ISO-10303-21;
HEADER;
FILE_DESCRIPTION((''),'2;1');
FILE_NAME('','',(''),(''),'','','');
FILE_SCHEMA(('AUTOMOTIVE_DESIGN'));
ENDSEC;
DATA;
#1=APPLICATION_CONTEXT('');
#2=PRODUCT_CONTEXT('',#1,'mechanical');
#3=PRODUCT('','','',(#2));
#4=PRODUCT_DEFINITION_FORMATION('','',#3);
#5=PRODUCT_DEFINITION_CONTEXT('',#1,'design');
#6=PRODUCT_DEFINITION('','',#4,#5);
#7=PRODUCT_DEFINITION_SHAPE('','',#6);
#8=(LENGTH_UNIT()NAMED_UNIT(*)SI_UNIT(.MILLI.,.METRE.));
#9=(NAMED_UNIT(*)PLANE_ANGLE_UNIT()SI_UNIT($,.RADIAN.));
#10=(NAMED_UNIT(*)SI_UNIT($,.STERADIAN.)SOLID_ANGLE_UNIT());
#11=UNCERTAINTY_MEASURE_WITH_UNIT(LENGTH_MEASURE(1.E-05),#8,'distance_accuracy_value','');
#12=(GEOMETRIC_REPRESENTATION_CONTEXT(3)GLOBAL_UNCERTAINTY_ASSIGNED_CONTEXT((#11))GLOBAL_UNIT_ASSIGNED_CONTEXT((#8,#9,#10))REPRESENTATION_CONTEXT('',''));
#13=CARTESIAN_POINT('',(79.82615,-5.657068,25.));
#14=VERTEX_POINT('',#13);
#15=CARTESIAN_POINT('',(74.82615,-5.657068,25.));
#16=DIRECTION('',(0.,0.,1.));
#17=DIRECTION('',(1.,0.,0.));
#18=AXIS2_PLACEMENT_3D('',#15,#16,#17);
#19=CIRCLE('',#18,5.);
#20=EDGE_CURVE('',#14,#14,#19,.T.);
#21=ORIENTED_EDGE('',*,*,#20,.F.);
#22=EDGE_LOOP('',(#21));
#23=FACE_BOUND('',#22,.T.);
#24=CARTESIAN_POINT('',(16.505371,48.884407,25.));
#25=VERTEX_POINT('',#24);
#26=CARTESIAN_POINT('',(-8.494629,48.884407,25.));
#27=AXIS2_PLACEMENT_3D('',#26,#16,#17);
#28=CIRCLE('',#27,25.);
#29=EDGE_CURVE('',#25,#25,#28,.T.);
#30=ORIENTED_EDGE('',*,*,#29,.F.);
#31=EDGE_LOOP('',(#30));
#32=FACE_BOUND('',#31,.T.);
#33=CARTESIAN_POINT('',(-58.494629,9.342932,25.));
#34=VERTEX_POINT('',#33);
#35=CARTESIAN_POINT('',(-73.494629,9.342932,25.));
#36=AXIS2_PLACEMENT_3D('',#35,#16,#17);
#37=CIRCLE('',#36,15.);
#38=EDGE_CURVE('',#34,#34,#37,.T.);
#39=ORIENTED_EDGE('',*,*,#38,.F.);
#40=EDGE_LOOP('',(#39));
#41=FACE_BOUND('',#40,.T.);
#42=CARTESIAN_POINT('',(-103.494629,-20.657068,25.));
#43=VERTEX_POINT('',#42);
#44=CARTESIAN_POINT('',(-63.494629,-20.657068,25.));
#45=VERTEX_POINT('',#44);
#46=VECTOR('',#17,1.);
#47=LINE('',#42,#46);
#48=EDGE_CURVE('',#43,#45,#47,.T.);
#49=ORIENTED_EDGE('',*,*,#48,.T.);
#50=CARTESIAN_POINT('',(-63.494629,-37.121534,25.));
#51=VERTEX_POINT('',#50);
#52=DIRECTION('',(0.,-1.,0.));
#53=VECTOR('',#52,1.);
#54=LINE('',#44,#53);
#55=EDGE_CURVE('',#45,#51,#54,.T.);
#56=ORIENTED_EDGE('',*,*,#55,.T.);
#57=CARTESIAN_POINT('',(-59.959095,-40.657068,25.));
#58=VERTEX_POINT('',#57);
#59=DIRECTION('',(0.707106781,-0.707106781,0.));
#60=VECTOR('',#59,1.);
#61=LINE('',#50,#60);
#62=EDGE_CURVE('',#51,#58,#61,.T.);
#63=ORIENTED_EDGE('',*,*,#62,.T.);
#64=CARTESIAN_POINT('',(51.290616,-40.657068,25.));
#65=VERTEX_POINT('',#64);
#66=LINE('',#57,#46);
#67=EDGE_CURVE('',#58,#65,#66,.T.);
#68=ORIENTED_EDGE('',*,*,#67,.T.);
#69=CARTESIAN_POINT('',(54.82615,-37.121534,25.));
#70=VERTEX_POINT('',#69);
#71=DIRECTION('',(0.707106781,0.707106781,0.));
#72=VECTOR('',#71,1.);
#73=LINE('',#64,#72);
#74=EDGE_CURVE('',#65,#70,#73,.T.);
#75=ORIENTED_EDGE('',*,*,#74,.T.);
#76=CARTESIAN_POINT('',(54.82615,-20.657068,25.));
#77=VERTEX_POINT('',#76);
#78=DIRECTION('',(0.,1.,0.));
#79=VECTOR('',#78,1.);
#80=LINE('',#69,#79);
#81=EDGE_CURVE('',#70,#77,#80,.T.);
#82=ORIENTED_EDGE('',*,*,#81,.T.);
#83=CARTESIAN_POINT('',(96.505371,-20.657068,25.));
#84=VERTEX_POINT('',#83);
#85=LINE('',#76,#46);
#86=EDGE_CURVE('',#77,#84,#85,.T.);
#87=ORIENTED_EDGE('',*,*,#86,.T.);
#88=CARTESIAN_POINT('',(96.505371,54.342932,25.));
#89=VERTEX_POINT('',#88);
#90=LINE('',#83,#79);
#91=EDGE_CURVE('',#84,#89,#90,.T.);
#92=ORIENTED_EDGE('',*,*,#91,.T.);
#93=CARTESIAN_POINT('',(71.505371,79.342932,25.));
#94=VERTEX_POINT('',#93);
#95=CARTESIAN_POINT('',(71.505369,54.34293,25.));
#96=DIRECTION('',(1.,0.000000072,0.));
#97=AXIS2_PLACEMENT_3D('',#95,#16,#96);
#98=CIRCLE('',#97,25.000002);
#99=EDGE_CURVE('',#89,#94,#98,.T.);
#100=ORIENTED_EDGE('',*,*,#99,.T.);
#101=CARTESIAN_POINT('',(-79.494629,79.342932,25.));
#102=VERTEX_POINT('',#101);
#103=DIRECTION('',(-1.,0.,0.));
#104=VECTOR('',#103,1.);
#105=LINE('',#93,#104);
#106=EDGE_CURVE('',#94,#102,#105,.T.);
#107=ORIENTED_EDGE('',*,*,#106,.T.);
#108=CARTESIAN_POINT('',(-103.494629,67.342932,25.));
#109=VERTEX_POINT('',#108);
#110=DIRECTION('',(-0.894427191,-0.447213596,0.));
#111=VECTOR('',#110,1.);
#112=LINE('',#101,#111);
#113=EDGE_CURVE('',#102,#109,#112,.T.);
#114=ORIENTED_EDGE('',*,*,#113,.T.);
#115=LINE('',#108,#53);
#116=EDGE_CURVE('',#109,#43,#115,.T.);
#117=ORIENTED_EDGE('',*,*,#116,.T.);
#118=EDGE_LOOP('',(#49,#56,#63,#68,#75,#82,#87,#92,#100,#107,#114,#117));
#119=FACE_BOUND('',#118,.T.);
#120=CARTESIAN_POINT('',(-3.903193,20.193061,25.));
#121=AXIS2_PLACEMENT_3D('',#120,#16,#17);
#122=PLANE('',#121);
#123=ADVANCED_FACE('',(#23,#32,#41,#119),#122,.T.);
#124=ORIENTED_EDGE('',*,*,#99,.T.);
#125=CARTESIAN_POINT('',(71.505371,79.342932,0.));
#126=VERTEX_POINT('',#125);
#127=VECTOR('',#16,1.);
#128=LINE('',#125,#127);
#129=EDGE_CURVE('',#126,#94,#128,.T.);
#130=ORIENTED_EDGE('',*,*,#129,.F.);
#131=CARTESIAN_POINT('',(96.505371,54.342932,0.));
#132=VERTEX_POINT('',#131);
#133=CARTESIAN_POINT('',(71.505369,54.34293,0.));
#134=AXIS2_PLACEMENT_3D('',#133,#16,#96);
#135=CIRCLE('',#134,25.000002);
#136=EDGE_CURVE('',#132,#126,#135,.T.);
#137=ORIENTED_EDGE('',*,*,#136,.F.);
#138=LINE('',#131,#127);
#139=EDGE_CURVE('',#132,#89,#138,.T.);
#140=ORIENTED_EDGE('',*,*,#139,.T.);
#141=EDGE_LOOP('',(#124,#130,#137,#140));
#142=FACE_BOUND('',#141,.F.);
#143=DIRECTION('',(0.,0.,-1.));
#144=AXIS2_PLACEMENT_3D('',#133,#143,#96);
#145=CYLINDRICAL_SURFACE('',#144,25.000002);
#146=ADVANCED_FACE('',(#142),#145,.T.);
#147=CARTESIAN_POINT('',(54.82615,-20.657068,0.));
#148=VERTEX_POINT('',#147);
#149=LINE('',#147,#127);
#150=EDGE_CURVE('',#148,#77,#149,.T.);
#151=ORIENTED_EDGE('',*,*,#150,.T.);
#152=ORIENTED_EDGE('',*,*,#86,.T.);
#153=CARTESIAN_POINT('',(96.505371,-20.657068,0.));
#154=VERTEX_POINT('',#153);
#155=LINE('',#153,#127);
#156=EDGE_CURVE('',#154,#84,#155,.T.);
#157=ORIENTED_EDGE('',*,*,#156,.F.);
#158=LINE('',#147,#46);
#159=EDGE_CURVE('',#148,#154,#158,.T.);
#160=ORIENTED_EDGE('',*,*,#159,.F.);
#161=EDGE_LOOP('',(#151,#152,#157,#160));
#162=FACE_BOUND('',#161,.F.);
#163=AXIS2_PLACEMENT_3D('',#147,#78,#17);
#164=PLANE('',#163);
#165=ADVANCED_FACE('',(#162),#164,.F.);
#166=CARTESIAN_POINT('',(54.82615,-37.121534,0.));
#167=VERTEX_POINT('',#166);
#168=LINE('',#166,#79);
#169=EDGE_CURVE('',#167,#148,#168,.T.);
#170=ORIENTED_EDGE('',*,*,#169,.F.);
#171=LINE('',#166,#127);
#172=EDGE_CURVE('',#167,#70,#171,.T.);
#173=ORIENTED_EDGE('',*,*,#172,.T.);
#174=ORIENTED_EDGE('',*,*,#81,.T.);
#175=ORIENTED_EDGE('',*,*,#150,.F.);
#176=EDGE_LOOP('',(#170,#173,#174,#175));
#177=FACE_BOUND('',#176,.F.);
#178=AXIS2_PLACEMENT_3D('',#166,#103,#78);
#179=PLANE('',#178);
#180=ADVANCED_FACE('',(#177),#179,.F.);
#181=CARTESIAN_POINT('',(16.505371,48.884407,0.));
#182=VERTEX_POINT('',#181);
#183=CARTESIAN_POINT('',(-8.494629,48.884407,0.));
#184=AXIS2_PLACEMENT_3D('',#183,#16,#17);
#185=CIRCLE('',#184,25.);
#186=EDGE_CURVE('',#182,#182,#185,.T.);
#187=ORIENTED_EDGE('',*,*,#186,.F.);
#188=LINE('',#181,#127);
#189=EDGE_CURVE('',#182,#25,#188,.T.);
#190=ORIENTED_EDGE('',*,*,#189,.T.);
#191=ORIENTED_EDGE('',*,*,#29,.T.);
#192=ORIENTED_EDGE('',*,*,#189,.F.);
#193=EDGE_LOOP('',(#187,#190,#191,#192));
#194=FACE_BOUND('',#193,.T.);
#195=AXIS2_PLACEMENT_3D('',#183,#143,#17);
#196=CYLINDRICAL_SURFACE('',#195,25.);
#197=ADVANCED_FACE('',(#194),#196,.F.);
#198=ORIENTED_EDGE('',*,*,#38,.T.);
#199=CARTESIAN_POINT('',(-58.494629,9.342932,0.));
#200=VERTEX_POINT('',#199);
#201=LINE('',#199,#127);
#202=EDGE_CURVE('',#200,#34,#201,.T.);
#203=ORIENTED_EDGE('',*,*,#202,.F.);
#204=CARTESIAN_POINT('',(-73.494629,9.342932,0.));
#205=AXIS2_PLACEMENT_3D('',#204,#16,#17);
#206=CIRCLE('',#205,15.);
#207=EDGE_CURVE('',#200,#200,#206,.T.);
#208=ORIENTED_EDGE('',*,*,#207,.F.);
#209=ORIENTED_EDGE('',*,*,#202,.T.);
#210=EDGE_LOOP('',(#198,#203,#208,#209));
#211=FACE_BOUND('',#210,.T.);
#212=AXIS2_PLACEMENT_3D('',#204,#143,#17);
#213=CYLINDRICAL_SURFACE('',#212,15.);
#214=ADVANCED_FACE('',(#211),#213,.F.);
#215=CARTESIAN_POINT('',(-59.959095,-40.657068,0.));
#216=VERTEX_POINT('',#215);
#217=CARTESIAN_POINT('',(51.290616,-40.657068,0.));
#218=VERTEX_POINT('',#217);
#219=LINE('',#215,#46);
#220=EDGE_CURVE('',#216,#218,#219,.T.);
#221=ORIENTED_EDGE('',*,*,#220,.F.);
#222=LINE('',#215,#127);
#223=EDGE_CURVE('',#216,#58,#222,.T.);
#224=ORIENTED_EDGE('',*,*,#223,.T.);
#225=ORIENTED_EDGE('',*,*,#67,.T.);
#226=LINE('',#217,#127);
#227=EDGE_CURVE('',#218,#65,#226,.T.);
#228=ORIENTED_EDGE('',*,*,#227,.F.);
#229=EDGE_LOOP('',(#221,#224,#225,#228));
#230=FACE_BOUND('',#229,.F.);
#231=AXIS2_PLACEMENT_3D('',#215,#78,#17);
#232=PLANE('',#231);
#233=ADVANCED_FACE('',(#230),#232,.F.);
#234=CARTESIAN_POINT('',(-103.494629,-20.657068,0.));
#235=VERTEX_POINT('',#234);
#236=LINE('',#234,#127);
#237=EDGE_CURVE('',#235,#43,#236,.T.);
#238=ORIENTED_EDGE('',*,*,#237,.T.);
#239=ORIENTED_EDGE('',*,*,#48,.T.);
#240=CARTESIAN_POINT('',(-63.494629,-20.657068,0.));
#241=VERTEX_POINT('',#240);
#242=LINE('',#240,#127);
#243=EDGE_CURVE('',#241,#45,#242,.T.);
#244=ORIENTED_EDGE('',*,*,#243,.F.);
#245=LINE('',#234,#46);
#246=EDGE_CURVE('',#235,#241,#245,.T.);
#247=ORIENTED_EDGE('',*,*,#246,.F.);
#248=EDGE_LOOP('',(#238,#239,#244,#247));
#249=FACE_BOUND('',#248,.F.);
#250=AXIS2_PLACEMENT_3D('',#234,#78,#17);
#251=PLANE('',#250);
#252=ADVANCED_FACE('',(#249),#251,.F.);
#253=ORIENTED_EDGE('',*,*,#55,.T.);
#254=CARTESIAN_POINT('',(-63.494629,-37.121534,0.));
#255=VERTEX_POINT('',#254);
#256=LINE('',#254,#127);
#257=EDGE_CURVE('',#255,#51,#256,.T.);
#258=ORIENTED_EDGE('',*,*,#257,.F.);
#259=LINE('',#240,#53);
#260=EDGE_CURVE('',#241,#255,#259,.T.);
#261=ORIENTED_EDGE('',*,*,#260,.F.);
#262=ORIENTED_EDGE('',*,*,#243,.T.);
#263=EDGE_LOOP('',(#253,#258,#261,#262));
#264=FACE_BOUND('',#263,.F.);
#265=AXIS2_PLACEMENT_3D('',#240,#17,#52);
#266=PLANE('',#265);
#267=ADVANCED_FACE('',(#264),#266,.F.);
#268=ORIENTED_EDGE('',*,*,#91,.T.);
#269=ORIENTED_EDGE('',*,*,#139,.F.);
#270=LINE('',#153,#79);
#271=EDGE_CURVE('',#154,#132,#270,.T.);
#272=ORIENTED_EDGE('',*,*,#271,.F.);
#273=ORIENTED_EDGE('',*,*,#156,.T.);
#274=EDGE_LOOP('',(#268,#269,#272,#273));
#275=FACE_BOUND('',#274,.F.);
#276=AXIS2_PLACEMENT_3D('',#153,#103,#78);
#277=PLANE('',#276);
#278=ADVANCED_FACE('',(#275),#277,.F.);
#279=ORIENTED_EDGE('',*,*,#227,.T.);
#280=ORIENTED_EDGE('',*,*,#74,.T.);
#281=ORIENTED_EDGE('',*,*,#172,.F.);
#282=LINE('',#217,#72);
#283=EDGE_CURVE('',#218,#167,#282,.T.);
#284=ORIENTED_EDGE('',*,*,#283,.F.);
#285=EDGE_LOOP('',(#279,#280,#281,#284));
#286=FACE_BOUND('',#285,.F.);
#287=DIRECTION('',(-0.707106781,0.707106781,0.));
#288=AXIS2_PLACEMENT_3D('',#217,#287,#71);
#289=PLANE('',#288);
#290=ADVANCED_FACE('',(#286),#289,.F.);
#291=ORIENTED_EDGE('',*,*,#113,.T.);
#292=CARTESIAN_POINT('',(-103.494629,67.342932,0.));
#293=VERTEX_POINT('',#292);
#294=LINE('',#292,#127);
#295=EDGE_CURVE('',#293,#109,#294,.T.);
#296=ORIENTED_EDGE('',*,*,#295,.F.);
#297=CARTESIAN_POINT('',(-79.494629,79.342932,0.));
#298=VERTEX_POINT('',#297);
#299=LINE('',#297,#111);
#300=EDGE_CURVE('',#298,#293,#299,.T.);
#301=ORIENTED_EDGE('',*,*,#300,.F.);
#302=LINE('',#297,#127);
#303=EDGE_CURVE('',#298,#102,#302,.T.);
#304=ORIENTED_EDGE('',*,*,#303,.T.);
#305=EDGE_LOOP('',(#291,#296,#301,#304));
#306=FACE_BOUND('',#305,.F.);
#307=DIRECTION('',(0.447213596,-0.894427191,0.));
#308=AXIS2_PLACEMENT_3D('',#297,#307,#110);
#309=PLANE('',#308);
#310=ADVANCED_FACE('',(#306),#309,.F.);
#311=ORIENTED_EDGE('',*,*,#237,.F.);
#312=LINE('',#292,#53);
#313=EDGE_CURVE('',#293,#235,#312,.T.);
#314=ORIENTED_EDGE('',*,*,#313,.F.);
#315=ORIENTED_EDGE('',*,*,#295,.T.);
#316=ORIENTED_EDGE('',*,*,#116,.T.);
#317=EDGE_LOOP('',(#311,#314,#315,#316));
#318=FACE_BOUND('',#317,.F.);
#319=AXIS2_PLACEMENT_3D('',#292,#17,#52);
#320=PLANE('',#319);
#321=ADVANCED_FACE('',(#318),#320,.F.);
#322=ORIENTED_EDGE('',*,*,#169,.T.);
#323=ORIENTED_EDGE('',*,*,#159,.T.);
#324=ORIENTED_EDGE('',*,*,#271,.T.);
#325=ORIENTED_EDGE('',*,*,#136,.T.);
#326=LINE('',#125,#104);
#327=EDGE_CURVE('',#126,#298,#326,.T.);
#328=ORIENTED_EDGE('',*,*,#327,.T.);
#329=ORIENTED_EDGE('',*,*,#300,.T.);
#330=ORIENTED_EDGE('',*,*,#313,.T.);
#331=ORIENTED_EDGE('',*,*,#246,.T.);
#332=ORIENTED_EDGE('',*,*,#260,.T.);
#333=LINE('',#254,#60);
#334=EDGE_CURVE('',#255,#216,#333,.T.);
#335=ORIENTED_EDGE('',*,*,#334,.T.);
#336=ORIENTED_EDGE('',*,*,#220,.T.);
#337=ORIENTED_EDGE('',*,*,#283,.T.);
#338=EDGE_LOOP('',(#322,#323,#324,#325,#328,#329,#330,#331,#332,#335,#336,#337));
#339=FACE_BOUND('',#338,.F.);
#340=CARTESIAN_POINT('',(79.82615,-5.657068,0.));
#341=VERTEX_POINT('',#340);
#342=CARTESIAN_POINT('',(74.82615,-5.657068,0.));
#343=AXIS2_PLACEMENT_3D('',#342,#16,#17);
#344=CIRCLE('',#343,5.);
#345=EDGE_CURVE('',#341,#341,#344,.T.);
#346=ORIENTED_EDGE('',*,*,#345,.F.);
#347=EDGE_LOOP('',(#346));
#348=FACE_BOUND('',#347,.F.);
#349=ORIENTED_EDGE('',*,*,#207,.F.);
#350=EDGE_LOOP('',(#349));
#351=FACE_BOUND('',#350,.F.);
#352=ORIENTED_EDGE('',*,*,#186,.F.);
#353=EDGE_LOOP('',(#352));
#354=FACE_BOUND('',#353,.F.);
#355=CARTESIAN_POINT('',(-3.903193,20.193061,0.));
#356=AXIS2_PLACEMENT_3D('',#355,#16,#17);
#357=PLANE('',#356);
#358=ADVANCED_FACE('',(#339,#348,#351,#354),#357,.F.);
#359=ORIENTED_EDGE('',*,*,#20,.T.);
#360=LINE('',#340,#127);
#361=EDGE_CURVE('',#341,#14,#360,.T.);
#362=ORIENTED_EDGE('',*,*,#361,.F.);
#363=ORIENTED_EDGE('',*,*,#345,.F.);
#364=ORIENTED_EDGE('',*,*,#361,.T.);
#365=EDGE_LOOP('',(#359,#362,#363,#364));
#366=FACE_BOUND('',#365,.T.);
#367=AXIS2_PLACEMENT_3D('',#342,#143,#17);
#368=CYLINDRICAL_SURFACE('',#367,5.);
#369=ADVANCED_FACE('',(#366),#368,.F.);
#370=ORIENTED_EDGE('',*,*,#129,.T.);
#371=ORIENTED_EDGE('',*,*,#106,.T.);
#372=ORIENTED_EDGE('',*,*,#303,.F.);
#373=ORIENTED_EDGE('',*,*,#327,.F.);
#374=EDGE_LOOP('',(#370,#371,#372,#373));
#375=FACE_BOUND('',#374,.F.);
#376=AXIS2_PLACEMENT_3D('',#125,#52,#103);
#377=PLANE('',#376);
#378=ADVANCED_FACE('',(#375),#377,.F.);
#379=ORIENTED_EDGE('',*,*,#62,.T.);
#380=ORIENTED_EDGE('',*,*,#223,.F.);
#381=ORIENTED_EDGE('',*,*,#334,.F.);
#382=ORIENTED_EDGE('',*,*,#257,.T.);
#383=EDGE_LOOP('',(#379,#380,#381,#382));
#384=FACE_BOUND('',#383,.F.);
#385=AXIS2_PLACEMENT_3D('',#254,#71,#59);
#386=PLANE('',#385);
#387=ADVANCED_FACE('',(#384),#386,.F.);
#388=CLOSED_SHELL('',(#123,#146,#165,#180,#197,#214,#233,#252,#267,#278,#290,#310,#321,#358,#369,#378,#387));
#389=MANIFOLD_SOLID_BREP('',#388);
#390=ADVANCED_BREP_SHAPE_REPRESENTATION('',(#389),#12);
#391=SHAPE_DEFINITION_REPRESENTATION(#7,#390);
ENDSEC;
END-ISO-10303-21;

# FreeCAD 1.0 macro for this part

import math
import FreeCAD as App
import Part
import Sketcher

V = App.Vector

doc = App.newDocument("Part")
body = doc.addObject("PartDesign::Body", "Body")

sketch1 = body.newObject("Sketcher::SketchObject", "Sketch")
sketch1.AttachmentSupport = (doc.getObject("XY_Plane"), [""])
sketch1.MapMode = "FlatFace"
sketch1.addGeometry(Part.LineSegment(V(-63, -21, 0), V(-63, -37, 0)), False)
sketch1.addGeometry(Part.LineSegment(V(-63, -37, 0), V(-60, -41, 0)), False)
sketch1.addGeometry(Part.LineSegment(V(-60, -41, 0), V(51, -41, 0)), False)
sketch1.addGeometry(Part.LineSegment(V(51, -41, 0), V(55, -37, 0)), False)
sketch1.addGeometry(Part.LineSegment(V(55, -37, 0), V(55, -21, 0)), False)
sketch1.addGeometry(Part.LineSegment(V(55, -21, 0), V(97, -21, 0)), False)
sketch1.addGeometry(Part.LineSegment(V(97, -21, 0), V(97, 54, 0)), False)
sketch1.addGeometry(Part.ArcOfCircle(Part.Circle(V(72, 54, 0), V(0, 0, 1), 25), math.radians(0), math.radians(90)), False)
sketch1.addGeometry(Part.LineSegment(V(72, 79, 0), V(-79, 79, 0)), False)
sketch1.addGeometry(Part.LineSegment(V(-79, 79, 0), V(-103, 67, 0)), False)
sketch1.addGeometry(Part.LineSegment(V(-103, 67, 0), V(-103, -21, 0)), False)
sketch1.addGeometry(Part.LineSegment(V(-103, -21, 0), V(-63, -21, 0)), False)
sketch1.addGeometry(Part.Circle(V(-73, 9, 0), V(0, 0, 1), 15), False)
sketch1.addGeometry(Part.Circle(V(75, -6, 0), V(0, 0, 1), 5), False)
sketch1.addGeometry(Part.Circle(V(-8, 49, 0), V(0, 0, 1), 25), False)
sketch1.addConstraint(Sketcher.Constraint("Coincident", 0, 2, 1, 1))
sketch1.addConstraint(Sketcher.Constraint("Coincident", 1, 2, 2, 1))
sketch1.addConstraint(Sketcher.Constraint("Coincident", 2, 2, 3, 1))
sketch1.addConstraint(Sketcher.Constraint("Coincident", 3, 2, 4, 1))
sketch1.addConstraint(Sketcher.Constraint("Coincident", 4, 2, 5, 1))
sketch1.addConstraint(Sketcher.Constraint("Coincident", 5, 2, 6, 1))
sketch1.addConstraint(Sketcher.Constraint("Tangent", 6, 2, 7, 1))
sketch1.addConstraint(Sketcher.Constraint("Tangent", 7, 2, 8, 1))
sketch1.addConstraint(Sketcher.Constraint("Coincident", 8, 2, 9, 1))
sketch1.addConstraint(Sketcher.Constraint("Coincident", 9, 2, 10, 1))
sketch1.addConstraint(Sketcher.Constraint("Coincident", 10, 2, 11, 1))
sketch1.addConstraint(Sketcher.Constraint("Coincident", 11, 2, 0, 1))
sketch1.addConstraint(Sketcher.Constraint("Vertical", 0))
sketch1.addConstraint(Sketcher.Constraint("Horizontal", 2))
sketch1.addConstraint(Sketcher.Constraint("Vertical", 4))
sketch1.addConstraint(Sketcher.Constraint("Horizontal", 5))
sketch1.addConstraint(Sketcher.Constraint("Vertical", 6))
sketch1.addConstraint(Sketcher.Constraint("Horizontal", 8))
sketch1.addConstraint(Sketcher.Constraint("Vertical", 10))
sketch1.addConstraint(Sketcher.Constraint("Horizontal", 11))
sketch1.addConstraint(Sketcher.Constraint("Equal", 7, 14))
sketch1.addConstraint(Sketcher.Constraint("Perpendicular", 1, 3))
sketch1.addConstraint(Sketcher.Constraint("Horizontal", 0, 2, 3, 2))
sketch1.addConstraint(Sketcher.Constraint("Horizontal", 5, 2, 10, 2))
sketch1.addConstraint(Sketcher.Constraint("Equal", 1, 3))
sketch1.addConstraint(Sketcher.Constraint("Diameter", 12, 30.0))
sketch1.addConstraint(Sketcher.Constraint("Diameter", 13, 10.0))
sketch1.addConstraint(Sketcher.Constraint("Diameter", 14, 50.0))
sketch1.addConstraint(Sketcher.Constraint("DistanceX", 8, 2, 8, 1, 151.0))
sketch1.addConstraint(Sketcher.Constraint("DistanceX", 11, 1, 11, 2, 40.0))
sketch1.addConstraint(Sketcher.Constraint("DistanceY", 6, 1, 6, 2, 75.0))
sketch1.addConstraint(Sketcher.Constraint("DistanceY", 10, 2, 10, 1, 88.0))
sketch1.addConstraint(Sketcher.Constraint("Distance", 1, 5.0))
sketch1.addConstraint(Sketcher.Constraint("DistanceX", 12, 3, 7, 3, 144.999998))
sketch1.addConstraint(Sketcher.Constraint("DistanceY", 12, 3, 7, 3, 44.999998))
sketch1.addConstraint(Sketcher.Constraint("DistanceY", 13, 3, 7, 3, 59.999998))
sketch1.addConstraint(Sketcher.Constraint("DistanceX", 12, 3, 14, 3, 65.0))
sketch1.addConstraint(Sketcher.Constraint("DistanceX", 12, 3, 0, 2, 10.0))
sketch1.addConstraint(Sketcher.Constraint("DistanceY", 1, 2, 12, 3, 50.0))
sketch1.addConstraint(Sketcher.Constraint("DistanceX", 3, 2, 13, 3, 20.0))
sketch1.addConstraint(Sketcher.Constraint("DistanceX", 2, 1, 2, 2, 111.249711))
sketch1.addConstraint(Sketcher.Constraint("DistanceX", -1, 1, 7, 3, 71.505369))
sketch1.addConstraint(Sketcher.Constraint("DistanceY", -1, 1, 7, 3, 54.34293))
sketch1.addConstraint(Sketcher.Constraint("DistanceY", 0, 2, 14, 3, 86.005941))
pad1 = body.newObject("PartDesign::Pad", "Pad")
pad1.Profile = sketch1
pad1.Length = 25

doc.recompute()
